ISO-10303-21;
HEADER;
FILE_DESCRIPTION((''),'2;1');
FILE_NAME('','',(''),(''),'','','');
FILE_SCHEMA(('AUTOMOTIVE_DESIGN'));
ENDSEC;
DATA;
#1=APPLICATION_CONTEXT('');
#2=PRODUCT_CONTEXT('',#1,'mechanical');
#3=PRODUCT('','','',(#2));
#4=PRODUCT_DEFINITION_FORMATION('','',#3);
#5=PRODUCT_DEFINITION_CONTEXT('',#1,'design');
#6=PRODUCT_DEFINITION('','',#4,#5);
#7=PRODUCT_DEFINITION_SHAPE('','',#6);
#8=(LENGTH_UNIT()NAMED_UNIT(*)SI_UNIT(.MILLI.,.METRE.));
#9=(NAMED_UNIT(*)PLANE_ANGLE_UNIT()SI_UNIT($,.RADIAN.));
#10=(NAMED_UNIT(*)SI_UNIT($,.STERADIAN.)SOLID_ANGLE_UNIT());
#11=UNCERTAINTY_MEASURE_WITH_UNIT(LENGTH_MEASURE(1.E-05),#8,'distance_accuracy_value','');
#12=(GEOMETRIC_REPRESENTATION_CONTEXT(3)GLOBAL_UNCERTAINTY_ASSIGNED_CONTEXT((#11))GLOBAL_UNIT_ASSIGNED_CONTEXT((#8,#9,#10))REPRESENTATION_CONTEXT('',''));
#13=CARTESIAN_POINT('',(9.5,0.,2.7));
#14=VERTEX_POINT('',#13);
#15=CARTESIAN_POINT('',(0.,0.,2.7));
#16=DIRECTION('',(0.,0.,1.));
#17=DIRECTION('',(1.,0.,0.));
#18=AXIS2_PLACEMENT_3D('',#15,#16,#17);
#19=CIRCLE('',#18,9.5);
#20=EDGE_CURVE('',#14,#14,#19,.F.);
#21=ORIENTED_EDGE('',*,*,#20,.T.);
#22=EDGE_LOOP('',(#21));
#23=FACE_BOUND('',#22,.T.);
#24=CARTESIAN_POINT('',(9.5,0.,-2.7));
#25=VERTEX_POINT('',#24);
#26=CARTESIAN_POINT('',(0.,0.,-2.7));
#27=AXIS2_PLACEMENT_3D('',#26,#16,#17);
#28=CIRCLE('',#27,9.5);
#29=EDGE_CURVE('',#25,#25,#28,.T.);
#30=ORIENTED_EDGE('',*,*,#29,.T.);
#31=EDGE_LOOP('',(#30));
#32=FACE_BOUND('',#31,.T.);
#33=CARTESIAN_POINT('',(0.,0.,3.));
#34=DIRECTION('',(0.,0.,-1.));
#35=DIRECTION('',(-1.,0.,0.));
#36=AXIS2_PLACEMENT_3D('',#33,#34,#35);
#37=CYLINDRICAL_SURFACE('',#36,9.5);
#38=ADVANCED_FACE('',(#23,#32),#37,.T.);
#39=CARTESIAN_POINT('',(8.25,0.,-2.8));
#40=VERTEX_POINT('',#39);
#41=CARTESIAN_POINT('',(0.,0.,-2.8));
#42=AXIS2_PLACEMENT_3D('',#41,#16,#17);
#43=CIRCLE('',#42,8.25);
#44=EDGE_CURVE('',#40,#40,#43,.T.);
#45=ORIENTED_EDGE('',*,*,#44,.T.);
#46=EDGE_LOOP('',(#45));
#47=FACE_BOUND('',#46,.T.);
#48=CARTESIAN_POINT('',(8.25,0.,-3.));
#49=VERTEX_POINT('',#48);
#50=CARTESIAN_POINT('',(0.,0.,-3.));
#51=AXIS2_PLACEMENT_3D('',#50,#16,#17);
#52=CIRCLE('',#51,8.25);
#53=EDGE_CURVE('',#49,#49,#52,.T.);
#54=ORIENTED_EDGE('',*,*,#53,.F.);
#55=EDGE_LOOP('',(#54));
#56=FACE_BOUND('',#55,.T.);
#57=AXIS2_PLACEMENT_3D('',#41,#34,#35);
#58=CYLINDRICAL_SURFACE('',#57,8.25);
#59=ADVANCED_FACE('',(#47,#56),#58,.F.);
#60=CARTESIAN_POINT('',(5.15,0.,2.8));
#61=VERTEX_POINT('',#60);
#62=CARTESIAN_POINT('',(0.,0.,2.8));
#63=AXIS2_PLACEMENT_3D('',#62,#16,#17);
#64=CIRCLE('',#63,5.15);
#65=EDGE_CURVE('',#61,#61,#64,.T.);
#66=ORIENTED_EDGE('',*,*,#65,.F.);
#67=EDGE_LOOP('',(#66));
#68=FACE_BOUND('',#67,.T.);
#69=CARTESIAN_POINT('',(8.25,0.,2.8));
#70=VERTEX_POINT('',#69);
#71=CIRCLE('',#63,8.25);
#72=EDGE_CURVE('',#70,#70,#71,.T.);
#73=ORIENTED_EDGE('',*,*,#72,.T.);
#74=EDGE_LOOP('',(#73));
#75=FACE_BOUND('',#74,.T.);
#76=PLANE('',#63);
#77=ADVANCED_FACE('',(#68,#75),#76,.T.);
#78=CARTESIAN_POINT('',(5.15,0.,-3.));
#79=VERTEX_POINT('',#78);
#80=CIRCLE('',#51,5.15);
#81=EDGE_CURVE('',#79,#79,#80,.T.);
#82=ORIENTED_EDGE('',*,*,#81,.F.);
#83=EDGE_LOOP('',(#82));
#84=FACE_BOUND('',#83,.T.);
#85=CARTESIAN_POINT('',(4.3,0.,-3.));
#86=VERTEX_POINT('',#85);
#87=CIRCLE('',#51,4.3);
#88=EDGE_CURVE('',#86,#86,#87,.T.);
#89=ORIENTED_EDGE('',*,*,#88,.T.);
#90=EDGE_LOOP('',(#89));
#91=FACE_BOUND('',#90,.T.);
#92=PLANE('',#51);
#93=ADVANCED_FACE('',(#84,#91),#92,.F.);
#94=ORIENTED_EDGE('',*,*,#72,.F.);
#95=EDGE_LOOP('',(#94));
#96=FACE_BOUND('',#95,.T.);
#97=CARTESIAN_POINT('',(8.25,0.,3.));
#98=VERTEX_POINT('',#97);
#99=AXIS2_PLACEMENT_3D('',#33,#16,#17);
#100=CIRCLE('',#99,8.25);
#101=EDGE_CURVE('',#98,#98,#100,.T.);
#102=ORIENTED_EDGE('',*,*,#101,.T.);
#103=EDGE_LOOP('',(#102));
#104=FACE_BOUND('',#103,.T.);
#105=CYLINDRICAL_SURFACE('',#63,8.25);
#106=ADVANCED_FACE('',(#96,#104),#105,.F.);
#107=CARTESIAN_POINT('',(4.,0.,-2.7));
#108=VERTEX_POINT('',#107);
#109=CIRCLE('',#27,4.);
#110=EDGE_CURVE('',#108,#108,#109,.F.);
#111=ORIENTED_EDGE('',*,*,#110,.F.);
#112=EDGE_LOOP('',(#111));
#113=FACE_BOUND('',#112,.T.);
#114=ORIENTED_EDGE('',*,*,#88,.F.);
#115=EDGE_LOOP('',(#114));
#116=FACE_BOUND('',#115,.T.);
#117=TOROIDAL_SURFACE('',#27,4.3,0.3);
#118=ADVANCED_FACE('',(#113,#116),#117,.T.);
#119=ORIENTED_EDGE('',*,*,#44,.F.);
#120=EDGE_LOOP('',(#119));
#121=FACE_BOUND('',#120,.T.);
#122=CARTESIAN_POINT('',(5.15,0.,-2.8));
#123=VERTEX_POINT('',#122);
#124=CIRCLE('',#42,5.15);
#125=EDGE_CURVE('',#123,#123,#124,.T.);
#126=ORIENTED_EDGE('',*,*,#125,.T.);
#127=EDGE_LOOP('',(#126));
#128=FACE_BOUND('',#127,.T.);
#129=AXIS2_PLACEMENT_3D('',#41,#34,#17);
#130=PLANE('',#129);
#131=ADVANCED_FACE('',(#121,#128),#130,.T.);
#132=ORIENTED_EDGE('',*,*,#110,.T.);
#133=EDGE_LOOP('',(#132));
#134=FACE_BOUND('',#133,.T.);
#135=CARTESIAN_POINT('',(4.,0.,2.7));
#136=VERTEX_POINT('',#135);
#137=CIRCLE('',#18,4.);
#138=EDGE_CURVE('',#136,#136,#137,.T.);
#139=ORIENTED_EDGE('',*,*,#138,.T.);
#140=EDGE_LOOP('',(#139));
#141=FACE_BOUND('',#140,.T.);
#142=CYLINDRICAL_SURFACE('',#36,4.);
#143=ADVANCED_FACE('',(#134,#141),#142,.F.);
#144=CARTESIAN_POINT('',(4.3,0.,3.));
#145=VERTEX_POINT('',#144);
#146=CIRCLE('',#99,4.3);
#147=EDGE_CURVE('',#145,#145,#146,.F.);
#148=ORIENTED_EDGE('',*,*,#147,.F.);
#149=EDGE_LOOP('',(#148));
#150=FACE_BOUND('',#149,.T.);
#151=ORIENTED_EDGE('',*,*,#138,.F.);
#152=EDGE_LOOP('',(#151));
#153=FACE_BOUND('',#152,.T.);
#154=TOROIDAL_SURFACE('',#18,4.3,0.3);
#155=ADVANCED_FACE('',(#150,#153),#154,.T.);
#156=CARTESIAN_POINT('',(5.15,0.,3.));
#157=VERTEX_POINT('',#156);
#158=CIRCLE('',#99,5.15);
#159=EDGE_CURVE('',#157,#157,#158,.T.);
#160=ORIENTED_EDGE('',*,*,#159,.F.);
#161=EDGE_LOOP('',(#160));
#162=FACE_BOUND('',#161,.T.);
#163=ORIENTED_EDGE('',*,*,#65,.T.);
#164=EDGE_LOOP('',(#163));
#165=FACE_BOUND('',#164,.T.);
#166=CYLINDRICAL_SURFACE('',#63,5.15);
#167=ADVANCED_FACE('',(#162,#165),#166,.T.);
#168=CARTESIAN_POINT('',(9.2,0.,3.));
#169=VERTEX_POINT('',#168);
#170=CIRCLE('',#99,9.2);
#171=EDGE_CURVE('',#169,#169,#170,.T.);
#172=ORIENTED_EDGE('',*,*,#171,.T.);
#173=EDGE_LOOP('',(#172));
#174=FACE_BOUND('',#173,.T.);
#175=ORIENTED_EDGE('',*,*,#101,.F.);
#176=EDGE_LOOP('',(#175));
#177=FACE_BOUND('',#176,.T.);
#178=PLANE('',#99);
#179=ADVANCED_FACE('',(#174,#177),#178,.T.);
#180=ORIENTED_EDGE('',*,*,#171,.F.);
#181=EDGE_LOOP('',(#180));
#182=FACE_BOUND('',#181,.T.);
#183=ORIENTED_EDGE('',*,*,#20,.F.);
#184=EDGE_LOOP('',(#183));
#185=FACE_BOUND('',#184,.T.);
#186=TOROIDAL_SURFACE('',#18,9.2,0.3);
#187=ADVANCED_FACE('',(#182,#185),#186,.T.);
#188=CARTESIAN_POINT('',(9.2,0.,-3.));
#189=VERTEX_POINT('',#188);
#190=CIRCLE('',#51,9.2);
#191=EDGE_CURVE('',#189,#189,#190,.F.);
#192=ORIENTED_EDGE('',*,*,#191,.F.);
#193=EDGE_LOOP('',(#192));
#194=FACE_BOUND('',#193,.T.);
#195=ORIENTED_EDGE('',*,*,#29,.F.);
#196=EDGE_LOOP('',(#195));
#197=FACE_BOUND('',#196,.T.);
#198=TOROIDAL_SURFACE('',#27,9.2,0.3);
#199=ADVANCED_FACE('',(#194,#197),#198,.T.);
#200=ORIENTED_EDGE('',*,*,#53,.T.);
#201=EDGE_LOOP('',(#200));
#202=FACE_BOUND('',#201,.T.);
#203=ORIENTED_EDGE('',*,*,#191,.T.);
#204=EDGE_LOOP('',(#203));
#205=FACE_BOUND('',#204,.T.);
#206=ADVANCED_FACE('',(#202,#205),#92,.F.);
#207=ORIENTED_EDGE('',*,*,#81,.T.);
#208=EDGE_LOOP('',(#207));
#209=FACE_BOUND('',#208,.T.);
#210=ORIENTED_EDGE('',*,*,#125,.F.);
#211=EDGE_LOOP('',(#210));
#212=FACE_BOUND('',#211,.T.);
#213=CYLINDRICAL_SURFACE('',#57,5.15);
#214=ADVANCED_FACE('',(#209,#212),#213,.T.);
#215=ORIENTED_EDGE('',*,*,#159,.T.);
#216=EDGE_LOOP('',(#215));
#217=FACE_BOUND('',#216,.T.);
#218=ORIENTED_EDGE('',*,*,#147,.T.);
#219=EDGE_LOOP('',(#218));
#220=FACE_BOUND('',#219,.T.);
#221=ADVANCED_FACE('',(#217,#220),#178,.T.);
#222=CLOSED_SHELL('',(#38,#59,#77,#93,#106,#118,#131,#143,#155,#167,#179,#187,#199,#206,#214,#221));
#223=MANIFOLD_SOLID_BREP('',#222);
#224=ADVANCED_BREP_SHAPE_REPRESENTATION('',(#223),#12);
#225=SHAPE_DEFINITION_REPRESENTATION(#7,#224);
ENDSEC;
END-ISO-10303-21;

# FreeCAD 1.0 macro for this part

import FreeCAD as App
import Part
import Sketcher


def edges_at(feature, points):
    """Names of the edges that pass closest to the given points."""
    edges = feature.Shape.Edges
    near = lambda p: min(range(len(edges)), key=lambda i: edges[i].distToShape(Part.Vertex(*p))[0])
    return sorted({f"Edge{near(p) + 1}" for p in points})

doc = App.newDocument("Part")
body = doc.addObject("PartDesign::Body", "Body")

# Sketch on XY plane
sketch1 = body.newObject("Sketcher::SketchObject", "Sketch")
sketch1.AttachmentSupport = (doc.getObject("XY_Plane"), [""])
sketch1.MapMode = "FlatFace"
sketch1.addGeometry(Part.Circle(App.Vector(0, 0, 0), App.Vector(0, 0, 1), 9.5), False)
sketch1.addGeometry(Part.Circle(App.Vector(0, 0, 0), App.Vector(0, 0, 1), 4), False)
sketch1.addConstraint(Sketcher.Constraint("Coincident", 0, 3, -1, 1))
sketch1.addConstraint(Sketcher.Constraint("Coincident", 1, 3, -1, 1))
sketch1.addConstraint(Sketcher.Constraint("Diameter", 0, 19.0))
sketch1.addConstraint(Sketcher.Constraint("Diameter", 1, 8.0))
pad1 = body.newObject("PartDesign::Pad", "Pad")
pad1.Profile = sketch1
pad1.Length = 6
pad1.Midplane = True

# Sketch on XY plane
sketch2 = body.newObject("Sketcher::SketchObject", "Sketch001")
sketch2.AttachmentSupport = (doc.getObject("XY_Plane"), [""])
sketch2.MapMode = "FlatFace"
sketch2.AttachmentOffset = App.Placement(App.Vector(0, 0, 3), App.Rotation())
sketch2.addGeometry(Part.Circle(App.Vector(0, 0, 0), App.Vector(0, 0, 1), 8), False)
sketch2.addGeometry(Part.Circle(App.Vector(0, 0, 0), App.Vector(0, 0, 1), 5), False)
sketch2.addConstraint(Sketcher.Constraint("Coincident", 0, 3, -1, 1))
sketch2.addConstraint(Sketcher.Constraint("Coincident", 1, 3, -1, 1))
sketch2.addConstraint(Sketcher.Constraint("Diameter", 0, 16.5))
sketch2.addConstraint(Sketcher.Constraint("Diameter", 1, 10.3))
pocket1 = body.newObject("PartDesign::Pocket", "Pocket")
pocket1.Profile = sketch2
pocket1.Length = 0.2
doc.recompute()

mirrored = body.newObject("PartDesign::Mirrored", "Mirrored")
mirrored.Originals = [pocket1]
mirrored.MirrorPlane = (doc.getObject("XY_Plane"), [""])
body.Tip = mirrored
doc.recompute()

fillet = body.newObject("PartDesign::Fillet", "Fillet")
fillet.Base = (mirrored, edges_at(mirrored, [
    (-9.5, 0, -3),
    (-9.5, 0, 3),
    (-4, 0, -3),
    (-4, 0, 3),
]))
fillet.Radius = 0.3

doc.recompute()
